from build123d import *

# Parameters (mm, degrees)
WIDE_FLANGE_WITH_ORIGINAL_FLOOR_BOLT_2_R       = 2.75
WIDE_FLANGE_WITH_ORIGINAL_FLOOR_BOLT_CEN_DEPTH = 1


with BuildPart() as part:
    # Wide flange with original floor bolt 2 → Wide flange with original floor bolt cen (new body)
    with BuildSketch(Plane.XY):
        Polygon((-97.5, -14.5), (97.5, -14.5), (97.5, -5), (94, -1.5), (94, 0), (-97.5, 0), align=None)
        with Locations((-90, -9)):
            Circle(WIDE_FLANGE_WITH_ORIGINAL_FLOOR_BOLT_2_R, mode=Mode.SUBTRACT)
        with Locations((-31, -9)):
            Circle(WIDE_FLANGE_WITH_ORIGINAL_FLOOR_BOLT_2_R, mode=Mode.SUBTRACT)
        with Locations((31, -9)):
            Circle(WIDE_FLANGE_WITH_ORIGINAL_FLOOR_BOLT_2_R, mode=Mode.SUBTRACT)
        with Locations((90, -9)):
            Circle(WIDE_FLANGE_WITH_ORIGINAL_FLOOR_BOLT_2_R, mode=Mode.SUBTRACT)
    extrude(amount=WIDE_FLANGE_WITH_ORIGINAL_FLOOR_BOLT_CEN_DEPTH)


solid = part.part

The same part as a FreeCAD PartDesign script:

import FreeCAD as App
import Part
import Sketcher
Q = App.Units.Quantity


def add_polygon(sketch, points):
    """Adds a closed chain of lines whose ends are joined by coincident constraints."""
    first, n = sketch.GeometryCount, len(points)
    for a, b in zip(points, points[1:] + points[:1]):
        sketch.addGeometry(Part.LineSegment(App.Vector(*a, 0), App.Vector(*b, 0)), False)
    for i in range(n):
        sketch.addConstraint(Sketcher.Constraint("Coincident", first + i, 2, first + (i + 1) % n, 1))

doc = App.newDocument("Part")
params = doc.addObject("Spreadsheet::Sheet", "Params")
for row, (alias, value) in enumerate([
    ("sketch1_diameter", "5.5 mm"),
    ("sketch1_width", "195 mm"),
    ("sketch1_width2", "191.5 mm"),
    ("sketch1_height", "9.5 mm"),
    ("sketch1_height2", "1.5 mm"),
    ("pad1_length", "1 mm"),
], start=1):
    params.set(f"A{row}", alias)
    params.set(f"B{row}", "=" + value)
    params.setAlias(f"B{row}", alias)

body = doc.addObject("PartDesign::Body", "Body")

# Sketch on XY plane
sketch1 = body.newObject("Sketcher::SketchObject", "Sketch")
sketch1.AttachmentSupport = (doc.getObject("XY_Plane"), [""])
sketch1.MapMode = "FlatFace"
add_polygon(sketch1, [(-97.5, -14.5), (97.5, -14.5), (97.5, -5), (94, -1.5), (94, 0), (-97.5, 0)])  # lines 0-5
sketch1.addGeometry(Part.Circle(App.Vector(-90, -9, 0), App.Vector(0, 0, 1), 2.8), False)  # 6
sketch1.addGeometry(Part.Circle(App.Vector(-31, -9, 0), App.Vector(0, 0, 1), 2.8), False)  # 7
sketch1.addGeometry(Part.Circle(App.Vector(31, -9, 0), App.Vector(0, 0, 1), 2.8), False)  # 8
sketch1.addGeometry(Part.Circle(App.Vector(90, -9, 0), App.Vector(0, 0, 1), 2.8), False)  # 9
sketch1.addConstraint([
    Sketcher.Constraint("Horizontal", 0),
    Sketcher.Constraint("Vertical", 1),
    Sketcher.Constraint("Vertical", 3),
    Sketcher.Constraint("Horizontal", 4),
    Sketcher.Constraint("Vertical", 5),
    Sketcher.Constraint("Equal", 6, 7),
    Sketcher.Constraint("Equal", 7, 8),
    Sketcher.Constraint("Equal", 8, 9),
    Sketcher.Constraint("Symmetric", 7, 3, 8, 3, -2),
    Sketcher.Constraint("Symmetric", 6, 3, 9, 3, -2),
    Sketcher.Constraint("PointOnObject", 3, 2, -1),
    Sketcher.Constraint("Horizontal", 6, 3, 7, 3),
    Sketcher.Constraint("Diameter", 6, 5.5),
    Sketcher.Constraint("DistanceX", 0, 1, 0, 2, 195.0),
    Sketcher.Constraint("Angle", 2, Q("135 deg")),
    Sketcher.Constraint("DistanceX", 4, 2, 4, 1, 191.5),
    Sketcher.Constraint("DistanceY", 1, 1, 1, 2, 9.5),
    Sketcher.Constraint("DistanceY", 3, 1, 3, 2, 1.5),
    Sketcher.Constraint("DistanceX", 6, 3, -1, 1, 90.0),
    Sketcher.Constraint("DistanceY", 6, 3, -1, 1, 9.0),
    Sketcher.Constraint("DistanceX", 7, 3, -1, 1, 31.0),
    Sketcher.Constraint("DistanceX", -1, 1, 2, 2, 94.0),
])
sketch1.setExpression("Constraints[18]", "Params.sketch1_diameter")
sketch1.setExpression("Constraints[19]", "Params.sketch1_width")
sketch1.setExpression("Constraints[21]", "Params.sketch1_width2")
sketch1.setExpression("Constraints[22]", "Params.sketch1_height")
sketch1.setExpression("Constraints[23]", "Params.sketch1_height2")
pad1 = body.newObject("PartDesign::Pad", "Pad")
pad1.Profile = sketch1
pad1.setExpression("Length", "Params.pad1_length")

doc.recompute()
